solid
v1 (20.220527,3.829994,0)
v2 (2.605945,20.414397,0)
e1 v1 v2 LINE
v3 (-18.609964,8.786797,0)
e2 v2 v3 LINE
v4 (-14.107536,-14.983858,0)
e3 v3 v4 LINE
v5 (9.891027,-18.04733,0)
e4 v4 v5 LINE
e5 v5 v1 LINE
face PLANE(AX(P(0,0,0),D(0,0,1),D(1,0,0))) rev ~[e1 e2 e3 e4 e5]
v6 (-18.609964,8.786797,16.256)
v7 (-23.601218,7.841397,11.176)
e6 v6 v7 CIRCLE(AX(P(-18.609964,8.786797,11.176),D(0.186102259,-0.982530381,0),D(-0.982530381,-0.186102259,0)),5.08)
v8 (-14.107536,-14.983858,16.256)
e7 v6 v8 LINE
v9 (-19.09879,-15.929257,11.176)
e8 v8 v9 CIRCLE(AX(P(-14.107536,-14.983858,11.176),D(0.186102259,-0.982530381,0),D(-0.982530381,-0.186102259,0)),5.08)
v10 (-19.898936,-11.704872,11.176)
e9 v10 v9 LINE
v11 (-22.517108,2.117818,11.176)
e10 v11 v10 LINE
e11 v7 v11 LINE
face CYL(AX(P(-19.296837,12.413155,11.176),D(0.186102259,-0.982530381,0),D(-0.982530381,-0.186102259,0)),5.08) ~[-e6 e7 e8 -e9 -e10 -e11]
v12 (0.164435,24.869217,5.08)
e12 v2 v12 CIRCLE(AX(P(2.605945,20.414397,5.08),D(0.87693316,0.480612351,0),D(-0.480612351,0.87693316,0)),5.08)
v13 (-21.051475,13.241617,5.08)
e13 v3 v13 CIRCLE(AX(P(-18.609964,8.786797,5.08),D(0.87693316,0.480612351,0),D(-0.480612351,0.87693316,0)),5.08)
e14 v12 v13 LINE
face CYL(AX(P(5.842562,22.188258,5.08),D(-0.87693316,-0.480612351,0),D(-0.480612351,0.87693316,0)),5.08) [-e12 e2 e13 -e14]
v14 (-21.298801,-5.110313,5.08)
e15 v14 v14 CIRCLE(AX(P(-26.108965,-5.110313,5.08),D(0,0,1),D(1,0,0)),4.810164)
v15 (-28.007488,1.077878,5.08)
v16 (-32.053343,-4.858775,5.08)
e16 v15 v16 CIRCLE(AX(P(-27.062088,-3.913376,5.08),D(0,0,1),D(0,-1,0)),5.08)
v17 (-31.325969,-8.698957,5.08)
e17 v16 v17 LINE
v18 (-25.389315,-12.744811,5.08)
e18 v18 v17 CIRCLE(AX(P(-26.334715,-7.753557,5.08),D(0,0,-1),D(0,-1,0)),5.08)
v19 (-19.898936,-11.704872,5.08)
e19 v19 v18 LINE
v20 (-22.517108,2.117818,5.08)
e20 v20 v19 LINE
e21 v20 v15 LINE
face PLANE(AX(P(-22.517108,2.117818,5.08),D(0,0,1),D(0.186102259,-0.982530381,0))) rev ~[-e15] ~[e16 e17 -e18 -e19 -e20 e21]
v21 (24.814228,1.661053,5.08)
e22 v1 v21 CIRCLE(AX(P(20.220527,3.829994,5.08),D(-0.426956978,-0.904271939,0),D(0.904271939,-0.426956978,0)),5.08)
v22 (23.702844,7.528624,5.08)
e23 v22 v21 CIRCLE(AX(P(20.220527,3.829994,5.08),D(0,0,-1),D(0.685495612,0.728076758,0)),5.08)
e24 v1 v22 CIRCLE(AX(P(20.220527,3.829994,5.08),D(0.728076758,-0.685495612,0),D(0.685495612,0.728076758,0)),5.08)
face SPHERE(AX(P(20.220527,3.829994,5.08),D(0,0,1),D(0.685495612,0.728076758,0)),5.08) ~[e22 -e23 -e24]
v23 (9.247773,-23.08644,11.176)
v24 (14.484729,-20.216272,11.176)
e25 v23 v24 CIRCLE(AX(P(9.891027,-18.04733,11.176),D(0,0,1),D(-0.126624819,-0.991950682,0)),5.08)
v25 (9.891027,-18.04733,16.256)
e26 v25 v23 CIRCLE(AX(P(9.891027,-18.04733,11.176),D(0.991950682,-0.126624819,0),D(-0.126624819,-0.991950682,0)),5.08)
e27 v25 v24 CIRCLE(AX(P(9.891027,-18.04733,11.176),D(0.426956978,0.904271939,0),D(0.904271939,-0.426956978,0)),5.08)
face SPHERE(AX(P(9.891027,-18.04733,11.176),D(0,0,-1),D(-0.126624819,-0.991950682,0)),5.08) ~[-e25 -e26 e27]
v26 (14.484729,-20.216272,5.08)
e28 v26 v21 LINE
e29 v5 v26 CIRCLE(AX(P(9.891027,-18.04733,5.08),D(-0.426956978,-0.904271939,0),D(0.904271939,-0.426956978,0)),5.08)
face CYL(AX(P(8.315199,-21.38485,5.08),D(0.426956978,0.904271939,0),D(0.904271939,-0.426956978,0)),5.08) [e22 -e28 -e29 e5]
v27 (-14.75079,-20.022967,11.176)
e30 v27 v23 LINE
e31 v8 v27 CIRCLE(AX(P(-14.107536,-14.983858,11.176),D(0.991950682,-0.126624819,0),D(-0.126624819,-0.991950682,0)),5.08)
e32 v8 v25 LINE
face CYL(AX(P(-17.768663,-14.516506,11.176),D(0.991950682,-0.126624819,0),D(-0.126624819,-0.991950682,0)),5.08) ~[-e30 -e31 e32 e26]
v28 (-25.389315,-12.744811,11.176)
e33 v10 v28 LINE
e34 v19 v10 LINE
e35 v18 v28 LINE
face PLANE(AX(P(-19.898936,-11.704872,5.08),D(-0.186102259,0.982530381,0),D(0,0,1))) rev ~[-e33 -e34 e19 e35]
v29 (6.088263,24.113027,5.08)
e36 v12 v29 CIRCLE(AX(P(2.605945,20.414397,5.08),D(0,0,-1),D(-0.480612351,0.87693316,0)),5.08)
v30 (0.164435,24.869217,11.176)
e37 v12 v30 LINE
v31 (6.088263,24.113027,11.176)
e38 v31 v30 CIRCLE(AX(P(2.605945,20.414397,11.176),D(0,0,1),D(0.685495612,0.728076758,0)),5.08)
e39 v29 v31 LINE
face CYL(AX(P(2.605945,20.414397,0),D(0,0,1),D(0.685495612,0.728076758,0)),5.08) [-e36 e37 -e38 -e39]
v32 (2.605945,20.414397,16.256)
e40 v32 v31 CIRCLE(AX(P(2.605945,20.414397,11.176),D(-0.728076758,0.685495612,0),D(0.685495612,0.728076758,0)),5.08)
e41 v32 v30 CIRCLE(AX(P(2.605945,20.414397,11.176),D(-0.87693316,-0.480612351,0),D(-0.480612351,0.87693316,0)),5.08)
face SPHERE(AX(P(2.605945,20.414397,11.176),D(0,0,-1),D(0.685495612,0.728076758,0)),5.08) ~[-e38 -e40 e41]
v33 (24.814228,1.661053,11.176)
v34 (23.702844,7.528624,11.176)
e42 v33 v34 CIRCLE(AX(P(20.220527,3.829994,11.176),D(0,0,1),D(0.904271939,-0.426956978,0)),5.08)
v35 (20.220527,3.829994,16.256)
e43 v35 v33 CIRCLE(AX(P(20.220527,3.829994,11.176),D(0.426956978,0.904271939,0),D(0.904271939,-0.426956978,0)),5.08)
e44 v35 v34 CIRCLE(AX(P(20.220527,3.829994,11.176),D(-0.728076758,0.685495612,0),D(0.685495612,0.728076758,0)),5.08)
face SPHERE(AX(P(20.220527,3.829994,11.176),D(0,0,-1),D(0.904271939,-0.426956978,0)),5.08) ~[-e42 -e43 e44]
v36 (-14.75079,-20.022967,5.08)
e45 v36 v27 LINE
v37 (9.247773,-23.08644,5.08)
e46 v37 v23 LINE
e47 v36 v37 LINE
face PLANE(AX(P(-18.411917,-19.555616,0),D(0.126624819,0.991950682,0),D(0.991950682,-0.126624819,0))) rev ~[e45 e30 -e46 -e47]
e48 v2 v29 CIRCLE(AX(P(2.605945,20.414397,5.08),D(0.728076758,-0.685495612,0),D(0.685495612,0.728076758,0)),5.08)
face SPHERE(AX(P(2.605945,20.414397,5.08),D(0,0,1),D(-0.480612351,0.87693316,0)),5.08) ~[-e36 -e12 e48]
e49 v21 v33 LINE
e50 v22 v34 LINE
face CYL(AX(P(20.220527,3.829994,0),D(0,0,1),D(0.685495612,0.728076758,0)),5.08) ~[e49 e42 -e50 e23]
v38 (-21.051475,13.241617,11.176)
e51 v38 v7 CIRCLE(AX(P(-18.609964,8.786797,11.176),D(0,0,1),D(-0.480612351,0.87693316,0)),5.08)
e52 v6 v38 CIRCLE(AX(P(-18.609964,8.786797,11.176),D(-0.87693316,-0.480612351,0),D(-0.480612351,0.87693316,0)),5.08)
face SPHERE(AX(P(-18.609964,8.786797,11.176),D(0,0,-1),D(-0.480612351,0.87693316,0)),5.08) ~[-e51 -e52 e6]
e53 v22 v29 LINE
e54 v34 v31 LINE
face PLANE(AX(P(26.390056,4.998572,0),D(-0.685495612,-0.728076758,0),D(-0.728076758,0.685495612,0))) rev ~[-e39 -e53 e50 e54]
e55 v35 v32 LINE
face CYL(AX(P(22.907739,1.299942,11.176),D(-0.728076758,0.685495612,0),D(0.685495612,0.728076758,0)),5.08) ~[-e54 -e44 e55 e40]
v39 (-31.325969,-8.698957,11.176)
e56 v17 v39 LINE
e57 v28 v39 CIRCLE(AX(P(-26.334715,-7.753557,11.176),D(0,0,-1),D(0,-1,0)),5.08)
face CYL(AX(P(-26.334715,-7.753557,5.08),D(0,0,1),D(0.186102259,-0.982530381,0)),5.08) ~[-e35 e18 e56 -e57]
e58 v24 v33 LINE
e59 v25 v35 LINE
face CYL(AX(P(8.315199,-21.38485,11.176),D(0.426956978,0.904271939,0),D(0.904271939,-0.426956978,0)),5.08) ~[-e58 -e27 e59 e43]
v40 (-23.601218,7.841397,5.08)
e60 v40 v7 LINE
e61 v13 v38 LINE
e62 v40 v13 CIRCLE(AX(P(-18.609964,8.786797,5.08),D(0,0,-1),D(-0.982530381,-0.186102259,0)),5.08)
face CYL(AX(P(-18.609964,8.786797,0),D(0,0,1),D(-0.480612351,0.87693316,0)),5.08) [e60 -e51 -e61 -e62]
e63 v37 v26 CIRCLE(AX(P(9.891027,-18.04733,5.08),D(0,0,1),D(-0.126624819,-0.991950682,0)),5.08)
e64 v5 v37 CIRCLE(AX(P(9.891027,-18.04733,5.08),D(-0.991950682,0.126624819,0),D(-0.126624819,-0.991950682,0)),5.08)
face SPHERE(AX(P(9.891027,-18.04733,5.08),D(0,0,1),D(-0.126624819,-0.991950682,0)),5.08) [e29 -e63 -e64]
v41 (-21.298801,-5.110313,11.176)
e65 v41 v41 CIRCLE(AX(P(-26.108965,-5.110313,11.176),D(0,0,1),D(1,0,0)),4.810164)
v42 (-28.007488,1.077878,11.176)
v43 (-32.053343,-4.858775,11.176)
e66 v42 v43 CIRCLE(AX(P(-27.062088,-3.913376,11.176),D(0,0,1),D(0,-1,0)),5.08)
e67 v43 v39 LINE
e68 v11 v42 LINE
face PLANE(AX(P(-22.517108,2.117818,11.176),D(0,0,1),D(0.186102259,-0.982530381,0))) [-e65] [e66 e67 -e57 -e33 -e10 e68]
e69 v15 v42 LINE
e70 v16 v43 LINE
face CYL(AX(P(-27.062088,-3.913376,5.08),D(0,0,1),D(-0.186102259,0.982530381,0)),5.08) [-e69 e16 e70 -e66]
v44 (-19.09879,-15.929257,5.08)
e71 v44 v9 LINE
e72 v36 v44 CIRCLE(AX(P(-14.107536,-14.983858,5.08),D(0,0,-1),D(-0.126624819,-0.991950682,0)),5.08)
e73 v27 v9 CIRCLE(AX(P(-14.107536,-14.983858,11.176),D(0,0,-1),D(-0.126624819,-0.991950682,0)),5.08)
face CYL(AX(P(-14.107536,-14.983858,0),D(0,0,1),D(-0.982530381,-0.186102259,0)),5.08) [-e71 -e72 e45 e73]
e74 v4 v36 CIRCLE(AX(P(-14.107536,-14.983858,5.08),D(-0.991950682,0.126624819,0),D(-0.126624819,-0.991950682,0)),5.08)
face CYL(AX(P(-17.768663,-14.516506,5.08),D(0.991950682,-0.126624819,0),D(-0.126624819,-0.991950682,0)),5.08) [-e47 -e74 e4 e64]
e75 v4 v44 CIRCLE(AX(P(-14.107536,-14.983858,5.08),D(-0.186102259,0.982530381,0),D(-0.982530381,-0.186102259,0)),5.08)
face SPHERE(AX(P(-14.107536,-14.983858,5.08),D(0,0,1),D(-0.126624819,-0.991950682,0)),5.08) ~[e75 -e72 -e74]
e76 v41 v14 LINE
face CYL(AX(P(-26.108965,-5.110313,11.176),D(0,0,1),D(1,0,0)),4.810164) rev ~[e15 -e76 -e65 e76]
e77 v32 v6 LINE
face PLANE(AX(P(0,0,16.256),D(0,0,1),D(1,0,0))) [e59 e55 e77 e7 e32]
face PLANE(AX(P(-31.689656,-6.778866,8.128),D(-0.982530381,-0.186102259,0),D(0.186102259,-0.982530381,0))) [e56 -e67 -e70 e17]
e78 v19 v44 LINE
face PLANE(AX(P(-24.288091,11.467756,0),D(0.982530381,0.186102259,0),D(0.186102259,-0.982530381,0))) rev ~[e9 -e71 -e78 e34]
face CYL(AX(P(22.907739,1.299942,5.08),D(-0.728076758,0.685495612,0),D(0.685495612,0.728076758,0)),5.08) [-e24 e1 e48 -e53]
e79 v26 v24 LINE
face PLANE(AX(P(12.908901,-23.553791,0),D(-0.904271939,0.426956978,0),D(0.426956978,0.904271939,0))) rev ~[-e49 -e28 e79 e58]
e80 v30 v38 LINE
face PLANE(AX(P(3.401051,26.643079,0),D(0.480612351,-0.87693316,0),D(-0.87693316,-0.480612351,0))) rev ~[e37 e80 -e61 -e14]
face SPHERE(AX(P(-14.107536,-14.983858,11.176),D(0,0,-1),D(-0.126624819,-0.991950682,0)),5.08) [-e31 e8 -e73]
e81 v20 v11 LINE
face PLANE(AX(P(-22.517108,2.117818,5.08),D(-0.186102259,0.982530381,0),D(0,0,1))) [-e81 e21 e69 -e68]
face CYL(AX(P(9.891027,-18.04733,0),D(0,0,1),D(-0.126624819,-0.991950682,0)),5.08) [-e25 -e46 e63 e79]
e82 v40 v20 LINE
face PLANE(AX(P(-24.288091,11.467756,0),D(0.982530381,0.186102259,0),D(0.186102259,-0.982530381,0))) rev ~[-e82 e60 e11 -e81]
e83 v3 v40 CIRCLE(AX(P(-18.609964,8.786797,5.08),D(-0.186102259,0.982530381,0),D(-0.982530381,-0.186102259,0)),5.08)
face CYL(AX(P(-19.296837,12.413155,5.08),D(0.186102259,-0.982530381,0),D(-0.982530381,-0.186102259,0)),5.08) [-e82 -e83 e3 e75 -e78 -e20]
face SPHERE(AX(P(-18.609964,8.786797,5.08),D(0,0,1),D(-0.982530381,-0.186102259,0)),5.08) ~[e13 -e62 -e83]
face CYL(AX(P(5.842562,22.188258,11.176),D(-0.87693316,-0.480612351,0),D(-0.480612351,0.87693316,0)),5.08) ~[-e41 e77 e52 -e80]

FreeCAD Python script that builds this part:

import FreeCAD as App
import Part
import Sketcher

V = App.Vector
Q = App.Units.Quantity


def edges_at(feature, points):
    """Names of the edges that pass closest to the given points."""
    edges = feature.Shape.Edges
    near = lambda p: min(range(len(edges)), key=lambda i: edges[i].distToShape(Part.Vertex(*p))[0])
    return sorted({f"Edge{near(p) + 1}" for p in points})

doc = App.newDocument("Part")
body = doc.addObject("PartDesign::Body", "Body")

# Sketch on XY plane
sketch1 = doc.addObject("Sketcher::SketchObject", "Sketch")
body.addObject(sketch1)
sketch1.AttachmentSupport = (doc.XY_Plane, [""])
sketch1.MapMode = "FlatFace"
sketch1.addGeometry([
    Part.LineSegment(V(26, 5, 0), V(3, 27, 0)),  # 0
    Part.LineSegment(V(3, 27, 0), V(-24, 11, 0)),  # 1
    Part.LineSegment(V(-24, 11, 0), V(-18, -20, 0)),  # 2
    Part.LineSegment(V(-18, -20, 0), V(13, -24, 0)),  # 3
    Part.LineSegment(V(13, -24, 0), V(26, 5, 0)),  # 4
], False)
sketch1.addConstraint([
    Sketcher.Constraint("Coincident", 0, 2, 1, 1),
    Sketcher.Constraint("Coincident", 1, 2, 2, 1),
    Sketcher.Constraint("Coincident", 2, 2, 3, 1),
    Sketcher.Constraint("Coincident", 3, 2, 4, 1),
    Sketcher.Constraint("Coincident", 4, 2, 0, 1),
    Sketcher.Constraint("Equal", 0, 1),
    Sketcher.Constraint("Equal", 1, 2),
    Sketcher.Constraint("Equal", 2, 3),
    Sketcher.Constraint("Equal", 3, 4),
    Sketcher.Constraint("DistanceX", -1, 1, 3, 2, Q("12.908901 mm")),
    Sketcher.Constraint("DistanceX", -1, 1, 0, 2, Q("3.401051 mm")),
    Sketcher.Constraint("DistanceY", -1, 1, 0, 2, Q("26.643079 mm")),
    Sketcher.Constraint("DistanceX", 1, 2, -1, 1, Q("24.288091 mm")),
    Sketcher.Constraint("DistanceY", 3, 2, -1, 1, Q("23.553791 mm")),
    Sketcher.Constraint("DistanceY", 2, 2, 1, 2, Q("31.023372 mm")),
])
pad1 = doc.addObject("PartDesign::Pad", "Pad")
body.addObject(pad1)
pad1.Profile = sketch1
pad1.Length = Q("0.64 in")
doc.recompute()

fillet = doc.addObject("PartDesign::Fillet", "Fillet")
body.addObject(fillet)
fillet.Base = (pad1, ["Edge1"])
fillet.UseAllEdges = True
fillet.Radius = Q("0.2 in")

# Sketch on an angled plane
sketch2 = doc.addObject("Sketcher::SketchObject", "Sketch001")
body.addObject(sketch2)
sketch2.Placement = App.Placement(V(-21.350004, -4.04393, 0), App.Rotation(V(0.186102259, -0.982530381, 0), V(0, 0, 1), V(-0.982530381, -0.186102259, 0), "ZXY"))
sketch2.addGeometry([
    Part.LineSegment(V(-6, 11, 0), V(-6, 5, 0)),
    Part.LineSegment(V(-6, 5, 0), V(8, 5, 0)),
    Part.LineSegment(V(8, 5, 0), V(8, 11, 0)),
    Part.LineSegment(V(8, 11, 0), V(-6, 11, 0)),
], False)
sketch2.addConstraint([
    Sketcher.Constraint("Coincident", 0, 2, 1, 1),
    Sketcher.Constraint("Coincident", 1, 2, 2, 1),
    Sketcher.Constraint("Coincident", 2, 2, 3, 1),
    Sketcher.Constraint("Coincident", 3, 2, 0, 1),
    Sketcher.Constraint("Vertical", 0),
    Sketcher.Constraint("Horizontal", 1),
    Sketcher.Constraint("Vertical", 2),
    Sketcher.Constraint("Horizontal", 3),
    Sketcher.Constraint("DistanceY", 0, 2, 0, 1, Q("0.24 in")),
    Sketcher.Constraint("DistanceY", -1, 1, 0, 2, Q("0.2 in")),
    Sketcher.Constraint("DistanceX", 1, 1, 1, 2, Q("14.068461 mm")),
    Sketcher.Constraint("DistanceX", 0, 2, -1, 1, Q("6.271305 mm")),
])
pad2 = doc.addObject("PartDesign::Pad", "Pad001")
body.addObject(pad2)
pad2.Profile = sketch2
pad2.Length = Q("0.42 in")
doc.recompute()

fillet2 = doc.addObject("PartDesign::Fillet", "Fillet001")
body.addObject(fillet2)
fillet2.Base = (pad2, edges_at(pad2, [(-30.381, -13.69, 8.128), (-32.999, 0.132, 8.128)]))
fillet2.Radius = Q("0.2 in")

# Sketch on XY plane
sketch3 = doc.addObject("Sketcher::SketchObject", "Sketch002")
body.addObject(sketch3)
sketch3.AttachmentSupport = (doc.XY_Plane, [""])
sketch3.MapMode = "FlatFace"
sketch3.AttachmentOffset = App.Placement(V(0, 0, 0.44 * 25.4), App.Rotation())
sketch3.addGeometry(Part.Circle(V(-26.1, -5.1, 0), V(0, 0, 1), 4.8), False)
sketch3.addConstraint([
    Sketcher.Constraint("Diameter", 0, Q("9.620329 mm")),
    Sketcher.Constraint("DistanceX", 0, 3, -1, 1, Q("26.108965 mm")),
    Sketcher.Constraint("DistanceY", 0, 3, -1, 1, Q("5.110313 mm")),
])
pocket1 = doc.addObject("PartDesign::Pocket", "Pocket")
body.addObject(pocket1)
pocket1.Profile = sketch3
pocket1.Length = Q("1 in")

doc.recompute()
